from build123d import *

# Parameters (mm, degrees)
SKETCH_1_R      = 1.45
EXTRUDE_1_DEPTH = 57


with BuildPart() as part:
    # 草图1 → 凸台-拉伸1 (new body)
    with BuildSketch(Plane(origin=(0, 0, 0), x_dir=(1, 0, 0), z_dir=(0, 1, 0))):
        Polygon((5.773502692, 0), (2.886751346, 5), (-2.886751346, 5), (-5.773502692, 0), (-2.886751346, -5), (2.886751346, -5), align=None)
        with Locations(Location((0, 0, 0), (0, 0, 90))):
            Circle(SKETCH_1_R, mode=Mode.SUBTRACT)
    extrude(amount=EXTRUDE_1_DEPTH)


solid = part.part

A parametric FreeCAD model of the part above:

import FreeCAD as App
import Part
import Sketcher
from FreeCAD import Vector
Q = App.Units.Quantity

doc = App.newDocument("Part")
body = doc.addObject("PartDesign::Body", "Body")

# Sketch on XZ plane
sketch1 = doc.addObject("Sketcher::SketchObject", "Sketch")
body.addObject(sketch1)
sketch1.AttachmentSupport = (doc.XZ_Plane, [""])
sketch1.MapMode = "FlatFace"
sketch1.addGeometry([
    Part.LineSegment(Vector(5.8, 0, 0), Vector(2.9, -5, 0)),  # 0
    Part.LineSegment(Vector(2.9, -5, 0), Vector(-2.9, -5, 0)),  # 1
    Part.LineSegment(Vector(-2.9, -5, 0), Vector(-5.8, 0, 0)),  # 2
    Part.LineSegment(Vector(-5.8, 0, 0), Vector(-2.9, 5, 0)),  # 3
    Part.LineSegment(Vector(-2.9, 5, 0), Vector(2.9, 5, 0)),  # 4
    Part.LineSegment(Vector(2.9, 5, 0), Vector(5.8, 0, 0)),  # 5
    Part.Circle(Vector(0, 0, 0), Vector(0, 0, 1), 1.4),  # 6
], False)
sketch1.addConstraint([
    Sketcher.Constraint("Coincident", 0, 2, 1, 1),
    Sketcher.Constraint("Coincident", 1, 2, 2, 1),
    Sketcher.Constraint("Coincident", 2, 2, 3, 1),
    Sketcher.Constraint("Coincident", 3, 2, 4, 1),
    Sketcher.Constraint("Coincident", 4, 2, 5, 1),
    Sketcher.Constraint("Coincident", 5, 2, 0, 1),
    Sketcher.Constraint("Horizontal", 1),
    Sketcher.Constraint("Horizontal", 4),
    Sketcher.Constraint("Coincident", 6, 3, -1, 1),
    Sketcher.Constraint("Symmetric", 0, 2, 3, 2, -1, 1),
    Sketcher.Constraint("Symmetric", 2, 2, 5, 2, -1, 1),
    Sketcher.Constraint("PointOnObject", 2, 2, -1),
    Sketcher.Constraint("Parallel", 2, 5),
    Sketcher.Constraint("Vertical", 1, 2, 3, 2),
    Sketcher.Constraint("Diameter", 6, Q("2.9 mm")),
    Sketcher.Constraint("Angle", 0, Q("-120 deg")),
    Sketcher.Constraint("DistanceY", 0, 2, -1, 1, Q("5 mm")),
    Sketcher.Constraint("DistanceX", 1, 2, 1, 1, Q("5.773503 mm")),
])
pad1 = doc.addObject("PartDesign::Pad", "Pad")
body.addObject(pad1)
pad1.Profile = sketch1
pad1.Length = 57
pad1.Reversed = True

doc.recompute()
